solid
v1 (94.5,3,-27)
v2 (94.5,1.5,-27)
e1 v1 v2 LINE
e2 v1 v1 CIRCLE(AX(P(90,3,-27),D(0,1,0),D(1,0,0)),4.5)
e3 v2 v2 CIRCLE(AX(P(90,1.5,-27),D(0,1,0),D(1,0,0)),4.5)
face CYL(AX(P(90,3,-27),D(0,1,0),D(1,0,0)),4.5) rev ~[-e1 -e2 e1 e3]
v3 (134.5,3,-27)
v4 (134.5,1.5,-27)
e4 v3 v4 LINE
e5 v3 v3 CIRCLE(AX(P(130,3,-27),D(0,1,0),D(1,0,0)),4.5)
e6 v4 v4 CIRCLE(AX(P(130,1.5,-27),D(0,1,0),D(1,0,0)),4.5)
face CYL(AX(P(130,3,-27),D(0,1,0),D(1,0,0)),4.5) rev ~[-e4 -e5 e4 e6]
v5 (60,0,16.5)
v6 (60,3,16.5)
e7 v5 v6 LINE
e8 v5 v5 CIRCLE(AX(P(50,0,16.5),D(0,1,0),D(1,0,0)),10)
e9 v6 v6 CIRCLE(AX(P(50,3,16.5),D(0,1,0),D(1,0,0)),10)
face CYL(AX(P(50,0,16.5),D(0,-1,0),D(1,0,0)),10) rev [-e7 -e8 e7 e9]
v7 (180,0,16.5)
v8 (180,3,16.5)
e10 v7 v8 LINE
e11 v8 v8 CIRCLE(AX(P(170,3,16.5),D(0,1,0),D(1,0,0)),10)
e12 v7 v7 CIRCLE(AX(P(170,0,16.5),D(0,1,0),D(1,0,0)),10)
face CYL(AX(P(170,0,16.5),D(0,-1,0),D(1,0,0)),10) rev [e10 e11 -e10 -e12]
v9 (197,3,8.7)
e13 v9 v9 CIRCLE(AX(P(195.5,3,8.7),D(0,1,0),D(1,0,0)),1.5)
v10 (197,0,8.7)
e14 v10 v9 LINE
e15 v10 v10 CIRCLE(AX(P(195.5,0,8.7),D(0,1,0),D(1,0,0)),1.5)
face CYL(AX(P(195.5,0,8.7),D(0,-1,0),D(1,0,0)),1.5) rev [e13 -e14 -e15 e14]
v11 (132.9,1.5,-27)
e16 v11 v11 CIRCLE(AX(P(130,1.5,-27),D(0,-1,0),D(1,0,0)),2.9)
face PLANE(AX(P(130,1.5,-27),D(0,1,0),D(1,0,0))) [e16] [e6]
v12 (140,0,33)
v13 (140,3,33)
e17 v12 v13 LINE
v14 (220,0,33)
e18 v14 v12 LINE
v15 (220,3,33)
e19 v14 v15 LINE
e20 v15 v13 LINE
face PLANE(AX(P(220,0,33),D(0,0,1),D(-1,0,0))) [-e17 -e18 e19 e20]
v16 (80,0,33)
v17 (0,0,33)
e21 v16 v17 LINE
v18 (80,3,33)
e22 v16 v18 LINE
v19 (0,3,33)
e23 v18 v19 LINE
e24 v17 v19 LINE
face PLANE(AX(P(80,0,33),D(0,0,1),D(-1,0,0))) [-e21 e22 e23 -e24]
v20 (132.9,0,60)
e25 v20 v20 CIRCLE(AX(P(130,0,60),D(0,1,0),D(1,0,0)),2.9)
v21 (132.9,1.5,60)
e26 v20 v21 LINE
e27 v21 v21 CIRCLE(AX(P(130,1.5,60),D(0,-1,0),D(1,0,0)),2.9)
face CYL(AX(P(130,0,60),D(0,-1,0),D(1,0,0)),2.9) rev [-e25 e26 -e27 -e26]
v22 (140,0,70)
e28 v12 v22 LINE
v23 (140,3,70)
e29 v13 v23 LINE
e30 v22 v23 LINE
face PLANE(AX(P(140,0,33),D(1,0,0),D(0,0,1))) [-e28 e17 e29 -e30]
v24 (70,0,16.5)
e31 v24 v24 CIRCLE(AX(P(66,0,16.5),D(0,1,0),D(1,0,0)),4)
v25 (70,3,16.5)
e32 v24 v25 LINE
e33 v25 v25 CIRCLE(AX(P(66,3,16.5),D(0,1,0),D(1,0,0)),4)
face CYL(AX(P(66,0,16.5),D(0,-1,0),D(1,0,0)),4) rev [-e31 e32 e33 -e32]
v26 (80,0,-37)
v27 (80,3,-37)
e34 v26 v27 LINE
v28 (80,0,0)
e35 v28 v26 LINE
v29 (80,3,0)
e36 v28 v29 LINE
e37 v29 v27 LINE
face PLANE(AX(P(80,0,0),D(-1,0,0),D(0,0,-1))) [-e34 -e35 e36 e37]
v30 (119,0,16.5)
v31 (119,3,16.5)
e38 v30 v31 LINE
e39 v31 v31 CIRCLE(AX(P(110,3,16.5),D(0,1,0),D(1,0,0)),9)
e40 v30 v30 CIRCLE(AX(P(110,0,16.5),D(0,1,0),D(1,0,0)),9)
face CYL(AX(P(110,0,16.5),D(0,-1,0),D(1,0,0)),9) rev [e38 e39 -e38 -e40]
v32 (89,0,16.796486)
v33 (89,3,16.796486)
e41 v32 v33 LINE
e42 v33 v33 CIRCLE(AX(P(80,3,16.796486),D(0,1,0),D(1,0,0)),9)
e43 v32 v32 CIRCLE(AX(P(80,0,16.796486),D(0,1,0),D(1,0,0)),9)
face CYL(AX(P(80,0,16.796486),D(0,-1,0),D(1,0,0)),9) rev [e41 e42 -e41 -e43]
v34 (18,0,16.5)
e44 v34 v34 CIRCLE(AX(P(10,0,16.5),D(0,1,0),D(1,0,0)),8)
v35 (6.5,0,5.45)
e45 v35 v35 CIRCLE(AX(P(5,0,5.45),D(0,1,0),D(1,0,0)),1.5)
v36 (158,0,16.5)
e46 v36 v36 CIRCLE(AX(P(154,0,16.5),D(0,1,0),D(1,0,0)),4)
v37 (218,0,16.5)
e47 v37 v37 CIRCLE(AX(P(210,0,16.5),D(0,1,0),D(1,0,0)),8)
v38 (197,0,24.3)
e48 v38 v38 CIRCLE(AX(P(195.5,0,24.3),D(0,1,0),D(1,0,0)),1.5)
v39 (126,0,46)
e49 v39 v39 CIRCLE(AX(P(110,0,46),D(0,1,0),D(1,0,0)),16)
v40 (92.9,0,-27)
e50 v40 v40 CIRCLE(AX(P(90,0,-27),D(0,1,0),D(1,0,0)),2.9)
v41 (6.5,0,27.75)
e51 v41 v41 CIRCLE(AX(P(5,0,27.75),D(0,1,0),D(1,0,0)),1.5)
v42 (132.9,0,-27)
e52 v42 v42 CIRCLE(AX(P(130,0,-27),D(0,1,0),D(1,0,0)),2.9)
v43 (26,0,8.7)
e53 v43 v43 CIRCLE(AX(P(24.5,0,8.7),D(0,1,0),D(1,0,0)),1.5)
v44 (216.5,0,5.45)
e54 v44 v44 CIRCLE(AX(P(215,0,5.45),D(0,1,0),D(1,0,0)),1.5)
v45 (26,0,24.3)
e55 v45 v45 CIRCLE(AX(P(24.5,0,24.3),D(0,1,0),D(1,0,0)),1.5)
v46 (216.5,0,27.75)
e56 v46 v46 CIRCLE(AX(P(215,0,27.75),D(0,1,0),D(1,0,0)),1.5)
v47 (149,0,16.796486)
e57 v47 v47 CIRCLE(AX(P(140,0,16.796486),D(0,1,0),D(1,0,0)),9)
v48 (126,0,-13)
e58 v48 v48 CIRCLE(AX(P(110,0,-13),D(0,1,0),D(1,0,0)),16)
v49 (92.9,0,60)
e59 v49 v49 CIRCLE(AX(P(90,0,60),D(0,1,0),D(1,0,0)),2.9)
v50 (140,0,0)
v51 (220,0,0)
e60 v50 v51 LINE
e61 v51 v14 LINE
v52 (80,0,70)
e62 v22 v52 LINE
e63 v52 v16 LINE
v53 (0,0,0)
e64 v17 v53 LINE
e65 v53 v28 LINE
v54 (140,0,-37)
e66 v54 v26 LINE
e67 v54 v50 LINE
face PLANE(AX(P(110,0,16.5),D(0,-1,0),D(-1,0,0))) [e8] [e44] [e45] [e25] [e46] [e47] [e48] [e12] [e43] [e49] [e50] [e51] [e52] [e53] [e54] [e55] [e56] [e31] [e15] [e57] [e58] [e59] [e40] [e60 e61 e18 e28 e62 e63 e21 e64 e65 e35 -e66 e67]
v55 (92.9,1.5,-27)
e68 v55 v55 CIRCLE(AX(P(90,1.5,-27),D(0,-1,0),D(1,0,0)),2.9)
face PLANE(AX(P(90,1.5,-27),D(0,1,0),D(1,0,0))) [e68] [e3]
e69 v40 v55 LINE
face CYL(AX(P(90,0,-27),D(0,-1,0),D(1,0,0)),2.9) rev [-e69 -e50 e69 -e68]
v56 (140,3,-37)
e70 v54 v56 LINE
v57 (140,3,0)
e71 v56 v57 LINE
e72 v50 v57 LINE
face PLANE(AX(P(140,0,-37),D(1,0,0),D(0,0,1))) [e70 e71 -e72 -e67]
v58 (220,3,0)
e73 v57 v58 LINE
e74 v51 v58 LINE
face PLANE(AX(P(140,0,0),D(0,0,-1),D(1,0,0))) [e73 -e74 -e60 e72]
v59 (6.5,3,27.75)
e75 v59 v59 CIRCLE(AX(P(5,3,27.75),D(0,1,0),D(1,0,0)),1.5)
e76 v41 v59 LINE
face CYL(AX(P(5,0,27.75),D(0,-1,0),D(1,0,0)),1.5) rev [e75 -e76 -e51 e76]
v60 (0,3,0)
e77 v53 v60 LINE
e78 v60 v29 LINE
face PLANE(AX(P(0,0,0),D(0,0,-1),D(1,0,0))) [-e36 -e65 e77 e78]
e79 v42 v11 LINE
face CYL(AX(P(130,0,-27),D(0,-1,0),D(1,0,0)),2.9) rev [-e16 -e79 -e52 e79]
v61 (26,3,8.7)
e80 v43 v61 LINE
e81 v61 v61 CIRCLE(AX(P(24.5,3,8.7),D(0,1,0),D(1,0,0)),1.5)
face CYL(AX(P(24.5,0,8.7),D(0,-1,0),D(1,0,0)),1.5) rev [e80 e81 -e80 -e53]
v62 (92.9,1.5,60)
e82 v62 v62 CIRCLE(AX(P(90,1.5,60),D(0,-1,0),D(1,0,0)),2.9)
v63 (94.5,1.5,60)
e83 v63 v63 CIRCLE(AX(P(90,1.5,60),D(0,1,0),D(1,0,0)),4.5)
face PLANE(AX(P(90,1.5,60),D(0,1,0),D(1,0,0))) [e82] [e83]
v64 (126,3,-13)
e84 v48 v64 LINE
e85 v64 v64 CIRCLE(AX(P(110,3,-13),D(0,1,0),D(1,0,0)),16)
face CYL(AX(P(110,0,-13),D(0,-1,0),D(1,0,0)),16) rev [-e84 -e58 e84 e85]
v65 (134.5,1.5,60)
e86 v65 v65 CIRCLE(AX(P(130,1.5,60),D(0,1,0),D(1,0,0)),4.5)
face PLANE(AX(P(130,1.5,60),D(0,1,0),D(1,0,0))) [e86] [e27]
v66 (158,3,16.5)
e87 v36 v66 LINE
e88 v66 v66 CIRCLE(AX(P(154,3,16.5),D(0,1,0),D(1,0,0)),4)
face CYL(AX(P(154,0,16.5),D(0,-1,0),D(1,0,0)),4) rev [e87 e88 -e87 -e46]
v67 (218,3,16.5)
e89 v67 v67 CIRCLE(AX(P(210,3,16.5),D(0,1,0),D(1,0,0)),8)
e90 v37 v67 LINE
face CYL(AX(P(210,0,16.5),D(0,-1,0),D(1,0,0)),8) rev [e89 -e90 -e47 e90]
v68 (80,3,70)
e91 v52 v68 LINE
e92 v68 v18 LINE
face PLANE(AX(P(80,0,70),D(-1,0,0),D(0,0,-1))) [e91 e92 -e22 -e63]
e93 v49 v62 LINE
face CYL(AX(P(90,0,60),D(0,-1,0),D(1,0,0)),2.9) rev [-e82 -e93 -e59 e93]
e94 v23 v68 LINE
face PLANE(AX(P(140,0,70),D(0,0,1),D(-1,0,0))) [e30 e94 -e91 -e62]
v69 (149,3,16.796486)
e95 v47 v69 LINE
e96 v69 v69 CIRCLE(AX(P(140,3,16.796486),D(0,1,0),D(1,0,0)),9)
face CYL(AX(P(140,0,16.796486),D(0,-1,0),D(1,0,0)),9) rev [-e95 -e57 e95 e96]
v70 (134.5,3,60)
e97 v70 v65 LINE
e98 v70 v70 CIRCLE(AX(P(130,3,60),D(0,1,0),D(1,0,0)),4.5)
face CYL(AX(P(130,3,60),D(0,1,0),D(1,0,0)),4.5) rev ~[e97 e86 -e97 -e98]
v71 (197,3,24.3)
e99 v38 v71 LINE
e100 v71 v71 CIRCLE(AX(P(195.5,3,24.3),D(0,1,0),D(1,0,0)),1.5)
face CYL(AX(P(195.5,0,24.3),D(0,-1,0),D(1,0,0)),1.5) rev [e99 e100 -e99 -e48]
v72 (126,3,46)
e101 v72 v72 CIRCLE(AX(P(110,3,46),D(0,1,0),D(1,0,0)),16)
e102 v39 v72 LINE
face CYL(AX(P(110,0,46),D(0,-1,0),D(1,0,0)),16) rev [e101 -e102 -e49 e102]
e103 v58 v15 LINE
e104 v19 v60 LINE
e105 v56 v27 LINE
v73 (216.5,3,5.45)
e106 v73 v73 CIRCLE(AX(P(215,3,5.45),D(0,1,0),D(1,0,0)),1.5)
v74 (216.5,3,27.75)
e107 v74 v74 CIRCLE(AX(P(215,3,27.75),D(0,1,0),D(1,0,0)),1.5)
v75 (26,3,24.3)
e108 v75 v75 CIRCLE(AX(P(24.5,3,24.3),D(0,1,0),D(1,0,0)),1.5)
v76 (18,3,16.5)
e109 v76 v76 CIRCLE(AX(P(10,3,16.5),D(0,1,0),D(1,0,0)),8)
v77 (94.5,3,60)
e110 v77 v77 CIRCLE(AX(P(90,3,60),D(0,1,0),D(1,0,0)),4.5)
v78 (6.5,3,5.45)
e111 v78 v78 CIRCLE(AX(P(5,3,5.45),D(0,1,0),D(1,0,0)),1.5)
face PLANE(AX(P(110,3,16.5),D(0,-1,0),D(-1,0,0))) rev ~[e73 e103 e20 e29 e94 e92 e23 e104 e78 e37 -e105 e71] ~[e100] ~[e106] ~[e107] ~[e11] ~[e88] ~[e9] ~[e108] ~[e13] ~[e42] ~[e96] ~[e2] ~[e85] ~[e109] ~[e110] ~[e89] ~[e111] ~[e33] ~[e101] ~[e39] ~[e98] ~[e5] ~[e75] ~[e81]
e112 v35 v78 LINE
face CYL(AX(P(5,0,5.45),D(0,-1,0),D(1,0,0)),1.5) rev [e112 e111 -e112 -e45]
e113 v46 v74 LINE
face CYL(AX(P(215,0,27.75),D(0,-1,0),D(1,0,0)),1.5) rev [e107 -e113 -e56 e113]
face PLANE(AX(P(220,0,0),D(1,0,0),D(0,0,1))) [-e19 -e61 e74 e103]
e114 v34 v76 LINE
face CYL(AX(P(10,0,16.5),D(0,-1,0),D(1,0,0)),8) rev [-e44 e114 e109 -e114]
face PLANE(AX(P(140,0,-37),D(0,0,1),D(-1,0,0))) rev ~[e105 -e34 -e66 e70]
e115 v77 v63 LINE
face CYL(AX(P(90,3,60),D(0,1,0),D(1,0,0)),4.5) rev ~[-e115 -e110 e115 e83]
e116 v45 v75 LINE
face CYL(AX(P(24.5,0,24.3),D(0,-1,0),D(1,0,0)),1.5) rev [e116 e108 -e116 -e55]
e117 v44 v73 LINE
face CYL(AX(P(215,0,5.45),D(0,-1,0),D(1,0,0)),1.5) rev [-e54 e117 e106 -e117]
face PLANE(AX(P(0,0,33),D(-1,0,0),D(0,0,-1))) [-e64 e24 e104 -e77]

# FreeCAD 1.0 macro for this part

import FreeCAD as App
import Part
import Sketcher
from FreeCAD import Vector

doc = App.newDocument("Part")
body = doc.addObject("PartDesign::Body", "Body")

# Sketch on XZ plane
sketch1 = body.newObject("Sketcher::SketchObject", "Sketch")
sketch1.AttachmentSupport = (doc.getObject("XZ_Plane"), [""])
sketch1.MapMode = "FlatFace"
sketch1.addGeometry([
    Part.LineSegment(Vector(80, 0, 0), Vector(0, 0, 0)),  # 0
    Part.LineSegment(Vector(0, 0, 0), Vector(0, 33, 0)),  # 1
    Part.LineSegment(Vector(0, 33, 0), Vector(80, 33, 0)),  # 2
    Part.LineSegment(Vector(80, 33, 0), Vector(80, 70, 0)),  # 3
    Part.LineSegment(Vector(80, 70, 0), Vector(140, 70, 0)),  # 4
    Part.LineSegment(Vector(140, 70, 0), Vector(140, 33, 0)),  # 5
    Part.LineSegment(Vector(140, 33, 0), Vector(220, 33, 0)),  # 6
    Part.LineSegment(Vector(220, 33, 0), Vector(220, 0, 0)),  # 7
    Part.LineSegment(Vector(220, 0, 0), Vector(140, 0, 0)),  # 8
    Part.LineSegment(Vector(140, 0, 0), Vector(140, -37, 0)),  # 9
    Part.LineSegment(Vector(140, -37, 0), Vector(80, -37, 0)),  # 10
    Part.LineSegment(Vector(80, -37, 0), Vector(80, 0, 0)),  # 11
    Part.Circle(Vector(130, 60, 0), Vector(0, 0, 1), 2.9),  # 12
    Part.Circle(Vector(215, 27.8, 0), Vector(0, 0, 1), 1.5),  # 13
    Part.Circle(Vector(195.5, 24.3, 0), Vector(0, 0, 1), 1.5),  # 14
    Part.Circle(Vector(140, 16.8, 0), Vector(0, 0, 1), 9),  # 15
    Part.Circle(Vector(90, 60, 0), Vector(0, 0, 1), 2.9),  # 16
    Part.Circle(Vector(110, 46, 0), Vector(0, 0, 1), 16),  # 17
    Part.Circle(Vector(80, 16.8, 0), Vector(0, 0, 1), 9),  # 18
    Part.Circle(Vector(24.5, 24.3, 0), Vector(0, 0, 1), 1.5),  # 19
    Part.Circle(Vector(5, 27.8, 0), Vector(0, 0, 1), 1.5),  # 20
    Part.Circle(Vector(210, 16.5, 0), Vector(0, 0, 1), 8),  # 21
    Part.Circle(Vector(215, 5.5, 0), Vector(0, 0, 1), 1.5),  # 22
    Part.Circle(Vector(195.5, 8.7, 0), Vector(0, 0, 1), 1.5),  # 23
    Part.Circle(Vector(170, 16.5, 0), Vector(0, 0, 1), 10),  # 24
    Part.Circle(Vector(154, 16.5, 0), Vector(0, 0, 1), 4),  # 25
    Part.Circle(Vector(130, -27, 0), Vector(0, 0, 1), 2.9),  # 26
    Part.Circle(Vector(110, 16.5, 0), Vector(0, 0, 1), 9),  # 27
    Part.Circle(Vector(66, 16.5, 0), Vector(0, 0, 1), 4),  # 28
    Part.Circle(Vector(50, 16.5, 0), Vector(0, 0, 1), 10),  # 29
    Part.Circle(Vector(10, 16.5, 0), Vector(0, 0, 1), 8),  # 30
    Part.Circle(Vector(24.5, 8.7, 0), Vector(0, 0, 1), 1.5),  # 31
    Part.Circle(Vector(5, 5.5, 0), Vector(0, 0, 1), 1.5),  # 32
    Part.Circle(Vector(110, -13, 0), Vector(0, 0, 1), 16),  # 33
    Part.Circle(Vector(90, -27, 0), Vector(0, 0, 1), 2.9),  # 34
], False)
sketch1.addConstraint([
    Sketcher.Constraint("Coincident", 0, 2, 1, 1),
    Sketcher.Constraint("Coincident", 1, 2, 2, 1),
    Sketcher.Constraint("Coincident", 2, 2, 3, 1),
    Sketcher.Constraint("Coincident", 3, 2, 4, 1),
    Sketcher.Constraint("Coincident", 4, 2, 5, 1),
    Sketcher.Constraint("Coincident", 5, 2, 6, 1),
    Sketcher.Constraint("Coincident", 6, 2, 7, 1),
    Sketcher.Constraint("Coincident", 7, 2, 8, 1),
    Sketcher.Constraint("Coincident", 8, 2, 9, 1),
    Sketcher.Constraint("Coincident", 9, 2, 10, 1),
    Sketcher.Constraint("Coincident", 10, 2, 11, 1),
    Sketcher.Constraint("Coincident", 11, 2, 0, 1),
    Sketcher.Constraint("Horizontal", 0),
    Sketcher.Constraint("Vertical", 1),
    Sketcher.Constraint("Horizontal", 2),
    Sketcher.Constraint("Vertical", 3),
    Sketcher.Constraint("Horizontal", 4),
    Sketcher.Constraint("Vertical", 5),
    Sketcher.Constraint("Horizontal", 6),
    Sketcher.Constraint("Vertical", 7),
    Sketcher.Constraint("Horizontal", 8),
    Sketcher.Constraint("Vertical", 9),
    Sketcher.Constraint("Horizontal", 10),
    Sketcher.Constraint("Vertical", 11),
    Sketcher.Constraint("Coincident", 0, 2, -1, 1),
    Sketcher.Constraint("Equal", 13, 14),
    Sketcher.Constraint("Equal", 12, 16),
    Sketcher.Constraint("Equal", 15, 18),
    Sketcher.Constraint("Equal", 14, 19),
    Sketcher.Constraint("Equal", 19, 20),
    Sketcher.Constraint("Equal", 20, 22),
    Sketcher.Constraint("Equal", 22, 23),
    Sketcher.Constraint("Equal", 16, 26),
    Sketcher.Constraint("Equal", 18, 27),
    Sketcher.Constraint("Equal", 25, 28),
    Sketcher.Constraint("Equal", 24, 29),
    Sketcher.Constraint("Equal", 21, 30),
    Sketcher.Constraint("Equal", 23, 31),
    Sketcher.Constraint("Equal", 31, 32),
    Sketcher.Constraint("Equal", 17, 33),
    Sketcher.Constraint("Equal", 26, 34),
    Sketcher.Constraint("PointOnObject", 7, 2, -1),
    Sketcher.Constraint("Horizontal", 12, 3, 16, 3),
    Sketcher.Constraint("Horizontal", 15, 3, 18, 3),
    Sketcher.Constraint("Horizontal", 14, 3, 19, 3),
    Sketcher.Constraint("Horizontal", 13, 3, 20, 3),
    Sketcher.Constraint("Horizontal", 21, 3, 24, 3),
    Sketcher.Constraint("Horizontal", 24, 3, 25, 3),
    Sketcher.Constraint("Horizontal", 25, 3, 27, 3),
    Sketcher.Constraint("Horizontal", 27, 3, 28, 3),
    Sketcher.Constraint("Horizontal", 28, 3, 29, 3),
    Sketcher.Constraint("Horizontal", 29, 3, 30, 3),
    Sketcher.Constraint("Horizontal", 23, 3, 31, 3),
    Sketcher.Constraint("Horizontal", 22, 3, 32, 3),
    Sketcher.Constraint("Horizontal", 26, 3, 34, 3),
    Sketcher.Constraint("Horizontal", 2, 2, 5, 2),
    Sketcher.Constraint("Vertical", 13, 3, 22, 3),
    Sketcher.Constraint("Vertical", 14, 3, 23, 3),
    Sketcher.Constraint("Vertical", 12, 3, 26, 3),
    Sketcher.Constraint("Vertical", 17, 3, 27, 3),
    Sketcher.Constraint("Vertical", 19, 3, 31, 3),
    Sketcher.Constraint("Vertical", 20, 3, 32, 3),
    Sketcher.Constraint("Vertical", 27, 3, 33, 3),
    Sketcher.Constraint("Vertical", 16, 3, 34, 3),
    Sketcher.Constraint("Vertical", 18, 3, 2, 2),
    Sketcher.Constraint("Vertical", 15, 3, 4, 2),
    Sketcher.Constraint("Vertical", 5, 2, 8, 2),
    Sketcher.Constraint("Vertical", 3, 2, 10, 2),
    Sketcher.Constraint("Equal", 2, 6),
    Sketcher.Constraint("Equal", 5, 9),
    Sketcher.Constraint("Diameter", 13, 3.0),
    Sketcher.Constraint("Diameter", 15, 18.0),
    Sketcher.Constraint("Diameter", 17, 32.0),
    Sketcher.Constraint("Diameter", 21, 16.0),
    Sketcher.Constraint("Diameter", 24, 20.0),
    Sketcher.Constraint("Diameter", 25, 8.0),
    Sketcher.Constraint("Diameter", 12, 5.8),
    Sketcher.Constraint("DistanceX", 0, 2, 0, 1, 80.0),
    Sketcher.Constraint("DistanceX", 4, 1, 4, 2, 60.0),
    Sketcher.Constraint("DistanceY", 1, 1, 1, 2, 33.0),
    Sketcher.Constraint("DistanceY", 3, 1, 3, 2, 37.0),
    Sketcher.Constraint("DistanceX", -1, 1, 12, 3, 130.0),
    Sketcher.Constraint("DistanceY", -1, 1, 12, 3, 60.0),
    Sketcher.Constraint("DistanceX", -1, 1, 13, 3, 215.0),
    Sketcher.Constraint("DistanceX", -1, 1, 16, 3, 90.0),
    Sketcher.Constraint("DistanceX", -1, 1, 17, 3, 110.0),
    Sketcher.Constraint("DistanceY", -1, 1, 17, 3, 46.0),
    Sketcher.Constraint("DistanceX", -1, 1, 20, 3, 5.0),
    Sketcher.Constraint("DistanceX", -1, 1, 21, 3, 210.0),
    Sketcher.Constraint("DistanceX", -1, 1, 24, 3, 170.0),
    Sketcher.Constraint("DistanceX", -1, 1, 25, 3, 154.0),
    Sketcher.Constraint("DistanceY", 26, 3, -1, 1, 27.0),
    Sketcher.Constraint("DistanceX", -1, 1, 28, 3, 66.0),
    Sketcher.Constraint("DistanceX", -1, 1, 29, 3, 50.0),
    Sketcher.Constraint("DistanceX", -1, 1, 30, 3, 10.0),
    Sketcher.Constraint("DistanceY", 33, 3, -1, 1, 13.0),
    Sketcher.Constraint("DistanceX", -1, 1, 14, 3, 195.5),
    Sketcher.Constraint("DistanceY", -1, 1, 14, 3, 24.3),
    Sketcher.Constraint("DistanceX", -1, 1, 19, 3, 24.5),
    Sketcher.Constraint("DistanceY", -1, 1, 21, 3, 16.5),
    Sketcher.Constraint("DistanceY", -1, 1, 23, 3, 8.7),
    Sketcher.Constraint("DistanceY", 22, 3, 13, 3, 22.3),
    Sketcher.Constraint("DistanceY", -1, 1, 13, 3, 27.75),
    Sketcher.Constraint("DistanceY", -1, 1, 15, 3, 16.796486),
])
pad1 = body.newObject("PartDesign::Pad", "Pad")
pad1.Profile = sketch1
pad1.Length = 3
pad1.Reversed = True

# Sketch on XZ plane
sketch2 = body.newObject("Sketcher::SketchObject", "Sketch001")
sketch2.AttachmentSupport = (doc.getObject("XZ_Plane"), [""])
sketch2.MapMode = "FlatFace"
sketch2.AttachmentOffset = App.Placement(Vector(0, 0, -3), App.Rotation())
sketch2.addGeometry([
    Part.Circle(Vector(90, -27, 0), Vector(0, 0, 1), 4.5),
    Part.Circle(Vector(130, -27, 0), Vector(0, 0, 1), 4.5),
    Part.Circle(Vector(90, 60, 0), Vector(0, 0, 1), 4.5),
    Part.Circle(Vector(130, 60, 0), Vector(0, 0, 1), 4.5),
], False)
sketch2.addConstraint([
    Sketcher.Constraint("Equal", 0, 1),
    Sketcher.Constraint("Equal", 1, 2),
    Sketcher.Constraint("Equal", 2, 3),
    Sketcher.Constraint("Horizontal", 0, 3, 1, 3),
    Sketcher.Constraint("Horizontal", 2, 3, 3, 3),
    Sketcher.Constraint("Vertical", 0, 3, 2, 3),
    Sketcher.Constraint("Vertical", 1, 3, 3, 3),
    Sketcher.Constraint("Diameter", 0, 9.0),
    Sketcher.Constraint("DistanceX", -1, 1, 0, 3, 90.0),
    Sketcher.Constraint("DistanceY", 0, 3, -1, 1, 27.0),
    Sketcher.Constraint("DistanceX", -1, 1, 1, 3, 130.0),
    Sketcher.Constraint("DistanceY", -1, 1, 2, 3, 60.0),
])
pocket1 = body.newObject("PartDesign::Pocket", "Pocket")
pocket1.Profile = sketch2
pocket1.Length = 1.5
pocket1.Reversed = True

doc.recompute()
